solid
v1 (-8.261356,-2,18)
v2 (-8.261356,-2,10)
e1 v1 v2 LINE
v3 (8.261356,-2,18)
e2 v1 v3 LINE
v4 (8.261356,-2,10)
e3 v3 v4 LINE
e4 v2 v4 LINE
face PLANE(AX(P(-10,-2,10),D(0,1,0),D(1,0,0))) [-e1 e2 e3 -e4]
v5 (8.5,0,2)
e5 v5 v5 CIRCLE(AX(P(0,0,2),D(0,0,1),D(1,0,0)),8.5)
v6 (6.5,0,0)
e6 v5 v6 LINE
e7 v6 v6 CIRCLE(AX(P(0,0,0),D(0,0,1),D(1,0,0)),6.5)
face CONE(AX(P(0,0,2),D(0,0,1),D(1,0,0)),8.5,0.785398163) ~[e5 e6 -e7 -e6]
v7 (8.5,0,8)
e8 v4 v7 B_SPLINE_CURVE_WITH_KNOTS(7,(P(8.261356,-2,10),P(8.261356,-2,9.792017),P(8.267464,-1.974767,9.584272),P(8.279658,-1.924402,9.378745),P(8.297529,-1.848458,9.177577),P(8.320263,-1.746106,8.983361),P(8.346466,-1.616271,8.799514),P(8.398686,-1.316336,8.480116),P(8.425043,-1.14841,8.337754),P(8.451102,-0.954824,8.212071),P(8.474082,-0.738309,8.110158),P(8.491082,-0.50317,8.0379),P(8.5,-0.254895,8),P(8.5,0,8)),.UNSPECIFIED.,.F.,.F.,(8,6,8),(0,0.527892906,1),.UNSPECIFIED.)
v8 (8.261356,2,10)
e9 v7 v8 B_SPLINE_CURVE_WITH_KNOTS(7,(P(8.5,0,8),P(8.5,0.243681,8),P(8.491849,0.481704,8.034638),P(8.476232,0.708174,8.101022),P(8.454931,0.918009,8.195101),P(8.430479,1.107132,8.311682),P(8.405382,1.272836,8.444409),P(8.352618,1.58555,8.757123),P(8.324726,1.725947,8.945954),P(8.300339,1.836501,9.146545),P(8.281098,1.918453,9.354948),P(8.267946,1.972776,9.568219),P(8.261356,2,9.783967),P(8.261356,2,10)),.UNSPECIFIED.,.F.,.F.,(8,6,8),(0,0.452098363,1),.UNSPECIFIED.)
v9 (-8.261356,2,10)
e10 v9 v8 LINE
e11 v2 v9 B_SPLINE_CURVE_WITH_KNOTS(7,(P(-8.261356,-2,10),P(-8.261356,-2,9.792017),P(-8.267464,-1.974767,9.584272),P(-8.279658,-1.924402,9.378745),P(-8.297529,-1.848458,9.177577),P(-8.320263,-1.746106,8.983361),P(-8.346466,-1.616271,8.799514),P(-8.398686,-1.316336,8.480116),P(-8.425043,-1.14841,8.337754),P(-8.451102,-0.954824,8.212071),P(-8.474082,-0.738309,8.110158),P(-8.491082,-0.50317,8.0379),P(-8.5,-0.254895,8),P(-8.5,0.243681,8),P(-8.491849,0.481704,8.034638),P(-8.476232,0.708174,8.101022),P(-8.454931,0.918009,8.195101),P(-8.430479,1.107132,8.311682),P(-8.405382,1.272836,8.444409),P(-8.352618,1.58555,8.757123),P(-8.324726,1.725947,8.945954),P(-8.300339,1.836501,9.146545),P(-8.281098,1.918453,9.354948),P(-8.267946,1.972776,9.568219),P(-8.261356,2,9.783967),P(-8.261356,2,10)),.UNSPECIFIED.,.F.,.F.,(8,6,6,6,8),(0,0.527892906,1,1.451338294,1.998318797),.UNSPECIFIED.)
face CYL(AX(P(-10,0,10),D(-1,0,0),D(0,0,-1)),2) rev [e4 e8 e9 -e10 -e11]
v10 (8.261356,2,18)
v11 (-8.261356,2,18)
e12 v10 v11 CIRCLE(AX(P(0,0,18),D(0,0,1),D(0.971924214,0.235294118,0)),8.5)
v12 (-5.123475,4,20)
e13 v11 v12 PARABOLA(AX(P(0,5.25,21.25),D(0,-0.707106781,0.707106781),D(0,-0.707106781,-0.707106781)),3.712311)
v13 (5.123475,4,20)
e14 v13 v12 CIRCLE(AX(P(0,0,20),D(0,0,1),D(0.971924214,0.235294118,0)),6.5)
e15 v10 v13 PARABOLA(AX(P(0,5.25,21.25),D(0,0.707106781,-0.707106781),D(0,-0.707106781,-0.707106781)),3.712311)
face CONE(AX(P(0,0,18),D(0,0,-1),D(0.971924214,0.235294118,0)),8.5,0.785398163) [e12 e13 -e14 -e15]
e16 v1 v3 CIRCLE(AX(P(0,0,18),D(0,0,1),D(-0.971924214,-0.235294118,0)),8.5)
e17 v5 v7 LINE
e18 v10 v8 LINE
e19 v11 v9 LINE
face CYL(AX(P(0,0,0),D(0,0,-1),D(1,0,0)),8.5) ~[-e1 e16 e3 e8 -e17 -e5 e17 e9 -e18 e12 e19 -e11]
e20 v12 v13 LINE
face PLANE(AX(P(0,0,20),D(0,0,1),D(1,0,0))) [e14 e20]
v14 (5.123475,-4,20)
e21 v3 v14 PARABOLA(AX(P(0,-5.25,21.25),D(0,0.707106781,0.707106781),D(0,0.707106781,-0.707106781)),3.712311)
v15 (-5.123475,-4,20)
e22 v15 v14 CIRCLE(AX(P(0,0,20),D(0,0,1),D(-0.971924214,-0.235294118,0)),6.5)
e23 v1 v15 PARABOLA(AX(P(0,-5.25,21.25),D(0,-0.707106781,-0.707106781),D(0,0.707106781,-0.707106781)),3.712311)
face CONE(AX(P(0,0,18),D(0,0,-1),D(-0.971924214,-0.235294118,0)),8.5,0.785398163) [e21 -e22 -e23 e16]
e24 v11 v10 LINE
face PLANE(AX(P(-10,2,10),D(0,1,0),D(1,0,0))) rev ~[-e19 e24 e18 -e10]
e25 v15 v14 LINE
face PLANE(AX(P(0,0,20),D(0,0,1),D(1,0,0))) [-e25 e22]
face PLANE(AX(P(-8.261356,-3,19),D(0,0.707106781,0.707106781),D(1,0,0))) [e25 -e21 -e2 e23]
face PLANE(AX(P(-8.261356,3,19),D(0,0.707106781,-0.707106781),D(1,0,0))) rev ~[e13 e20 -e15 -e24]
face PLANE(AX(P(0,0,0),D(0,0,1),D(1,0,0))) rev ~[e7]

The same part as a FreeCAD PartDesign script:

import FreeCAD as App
import Part
import Sketcher

V = App.Vector
Q = App.Units.Quantity


def edges_at(feature, points):
    """Names of the edges that pass closest to the given points."""
    edges = feature.Shape.Edges
    near = lambda p: min(range(len(edges)), key=lambda i: edges[i].distToShape(Part.Vertex(*p))[0])
    return sorted({f"Edge{near(p) + 1}" for p in points})


def add_polygon(sketch, points):
    """Adds a closed chain of lines whose ends are joined by coincident constraints."""
    first, n = sketch.GeometryCount, len(points)
    for a, b in zip(points, points[1:] + points[:1]):
        sketch.addGeometry(Part.LineSegment(App.Vector(*a, 0), App.Vector(*b, 0)), False)
    for i in range(n):
        sketch.addConstraint(Sketcher.Constraint("Coincident", first + i, 2, first + (i + 1) % n, 1))

doc = App.newDocument("Part")
body = doc.addObject("PartDesign::Body", "Body")

sketch1 = doc.addObject("Sketcher::SketchObject", "Sketch")
body.addObject(sketch1)
sketch1.AttachmentSupport = (doc.XY_Plane, [""])
sketch1.MapMode = "FlatFace"
sketch1.AttachmentOffset = App.Placement(V(0, 0, 10), App.Rotation())
add_polygon(sketch1, [(-10, 2), (-10, -2), (10, -2), (10, 2)])
sketch1.addConstraint([
    Sketcher.Constraint("Vertical", 0),
    Sketcher.Constraint("Horizontal", 1),
    Sketcher.Constraint("Vertical", 2),
    Sketcher.Constraint("Horizontal", 3),
    Sketcher.Constraint("Symmetric", 0, 2, 2, 2, -1, 1),
    Sketcher.Constraint("DistanceX", 1, 1, 1, 2, Q("20 mm")),
    Sketcher.Constraint("DistanceY", 0, 2, 0, 1, Q("4 mm")),
])
pad1 = doc.addObject("PartDesign::Pad", "Pad")
body.addObject(pad1)
pad1.Profile = sketch1
pad1.Length = 10
body2 = doc.addObject("PartDesign::Body", "Body001")

sketch2 = doc.addObject("Sketcher::SketchObject", "Sketch001")
body2.addObject(sketch2)
sketch2.AttachmentSupport = (doc.getObject("XY_Plane001"), [""])
sketch2.MapMode = "FlatFace"
sketch2.addGeometry(Part.Circle(V(0, 0, 0), V(0, 0, 1), 2), False)
sketch2.addConstraint([
    Sketcher.Constraint("Coincident", 0, 3, -1, 1),
    Sketcher.Constraint("Diameter", 0, Q("4 mm")),
])
pad2 = doc.addObject("PartDesign::Pad", "Pad001")
body2.addObject(pad2)
pad2.Profile = sketch2
pad2.Length = 20
body3 = doc.addObject("PartDesign::Body", "Body002")
doc.recompute()

body2.Placement = App.Placement(V(0, 0, 0), App.Rotation(V(0, 1, 0), 90))
boolean = doc.addObject("PartDesign::Boolean", "Boolean")
body3.addObject(boolean)
boolean.Type = "Fuse"
boolean.addObjects([body2])
body4 = doc.addObject("PartDesign::Body", "Body003")
doc.recompute()

body3.Placement = App.Placement(V(-10, 0, 10), App.Rotation(V(0, 0, 1), 0))
boolean2 = doc.addObject("PartDesign::Boolean", "Boolean001")
body4.addObject(boolean2)
boolean2.Type = "Fuse"
boolean2.addObjects([body3])
doc.recompute()

boolean3 = doc.addObject("PartDesign::Boolean", "Boolean002")
body4.addObject(boolean3)
boolean3.Type = "Fuse"
boolean3.addObjects([body])
body5 = doc.addObject("PartDesign::Body", "Body004")

sketch3 = doc.addObject("Sketcher::SketchObject", "Sketch002")
body5.addObject(sketch3)
sketch3.AttachmentSupport = (doc.getObject("XY_Plane004"), [""])
sketch3.MapMode = "FlatFace"
sketch3.addGeometry(Part.Circle(V(0, 0, 0), V(0, 0, 1), 8), False)
sketch3.addConstraint([
    Sketcher.Constraint("Coincident", 0, 3, -1, 1),
    Sketcher.Constraint("Diameter", 0, Q("17 mm")),
])
pad3 = doc.addObject("PartDesign::Pad", "Pad002")
body5.addObject(pad3)
pad3.Profile = sketch3
pad3.Length = 20
doc.recompute()

boolean4 = doc.addObject("PartDesign::Boolean", "Boolean003")
body5.addObject(boolean4)
boolean4.Type = "Cut"
boolean4.addObjects([body4])
doc.recompute()

chamfer = doc.addObject("PartDesign::Chamfer", "Chamfer")
body5.addObject(chamfer)
chamfer.Base = (boolean4, edges_at(boolean4, [
    (0, 8.5, 20),
    (0, -8.5, 20),
    (-8.5, 0, 0),
    (0, 2, 20),
    (0, -2, 20),
]))
chamfer.Size = 2

doc.recompute()
